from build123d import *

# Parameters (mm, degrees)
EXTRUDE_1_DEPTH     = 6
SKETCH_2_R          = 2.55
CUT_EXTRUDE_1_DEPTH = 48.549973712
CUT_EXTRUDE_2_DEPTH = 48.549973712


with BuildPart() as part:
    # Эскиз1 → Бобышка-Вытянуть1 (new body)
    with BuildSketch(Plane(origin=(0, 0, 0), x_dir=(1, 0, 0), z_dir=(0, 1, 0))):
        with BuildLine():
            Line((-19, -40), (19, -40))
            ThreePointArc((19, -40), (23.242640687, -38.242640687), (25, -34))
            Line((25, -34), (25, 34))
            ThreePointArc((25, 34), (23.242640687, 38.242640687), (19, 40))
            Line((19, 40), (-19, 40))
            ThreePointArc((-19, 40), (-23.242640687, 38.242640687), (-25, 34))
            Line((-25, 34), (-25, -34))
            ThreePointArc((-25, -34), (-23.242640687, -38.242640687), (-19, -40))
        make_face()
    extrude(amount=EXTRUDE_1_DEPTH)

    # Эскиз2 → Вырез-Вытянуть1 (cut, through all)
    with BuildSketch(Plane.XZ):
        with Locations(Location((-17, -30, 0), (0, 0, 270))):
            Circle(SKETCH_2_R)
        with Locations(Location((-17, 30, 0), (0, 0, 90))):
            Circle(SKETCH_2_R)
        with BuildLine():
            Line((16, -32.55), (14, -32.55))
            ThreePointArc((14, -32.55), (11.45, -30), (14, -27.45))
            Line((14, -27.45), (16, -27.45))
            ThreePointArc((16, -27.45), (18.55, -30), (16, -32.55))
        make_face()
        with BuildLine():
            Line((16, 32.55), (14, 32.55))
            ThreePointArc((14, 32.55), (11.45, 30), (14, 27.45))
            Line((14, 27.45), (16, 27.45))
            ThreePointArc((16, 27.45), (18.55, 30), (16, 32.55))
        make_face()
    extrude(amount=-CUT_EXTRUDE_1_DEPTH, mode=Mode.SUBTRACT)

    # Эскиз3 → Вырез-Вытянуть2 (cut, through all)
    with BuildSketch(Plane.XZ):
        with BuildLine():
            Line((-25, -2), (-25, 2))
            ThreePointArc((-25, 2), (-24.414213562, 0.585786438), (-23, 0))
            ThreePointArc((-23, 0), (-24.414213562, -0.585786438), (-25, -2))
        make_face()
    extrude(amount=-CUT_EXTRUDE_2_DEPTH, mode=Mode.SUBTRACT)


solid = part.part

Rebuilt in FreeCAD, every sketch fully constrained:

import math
import FreeCAD as App
import Part
import Sketcher

V = App.Vector

doc = App.newDocument("Part")
body = doc.addObject("PartDesign::Body", "Body")

# Sketch on XZ plane
sketch1 = doc.addObject("Sketcher::SketchObject", "Sketch")
body.addObject(sketch1)
sketch1.AttachmentSupport = (doc.XZ_Plane, [""])
sketch1.MapMode = "FlatFace"
sketch1.addGeometry(Part.LineSegment(V(-19, 40, 0), V(19, 40, 0)), False)
sketch1.addGeometry(Part.ArcOfCircle(Part.Circle(V(19, 34, 0), V(0, 0, 1), 6), math.radians(0), math.radians(90)), False)
sketch1.addGeometry(Part.LineSegment(V(25, 34, 0), V(25, -34, 0)), False)
sketch1.addGeometry(Part.ArcOfCircle(Part.Circle(V(19, -34, 0), V(0, 0, 1), 6), math.radians(-90), math.radians(0)), False)
sketch1.addGeometry(Part.LineSegment(V(19, -40, 0), V(-19, -40, 0)), False)
sketch1.addGeometry(Part.ArcOfCircle(Part.Circle(V(-19, -34, 0), V(0, 0, 1), 6), math.radians(180), math.radians(270)), False)
sketch1.addGeometry(Part.LineSegment(V(-25, -34, 0), V(-25, 34, 0)), False)
sketch1.addGeometry(Part.ArcOfCircle(Part.Circle(V(-19, 34, 0), V(0, 0, 1), 6), math.radians(90), math.radians(180)), False)
sketch1.addConstraint(Sketcher.Constraint("Tangent", 0, 2, 1, 2))
sketch1.addConstraint(Sketcher.Constraint("Tangent", 1, 1, 2, 1))
sketch1.addConstraint(Sketcher.Constraint("Tangent", 2, 2, 3, 2))
sketch1.addConstraint(Sketcher.Constraint("Tangent", 3, 1, 4, 1))
sketch1.addConstraint(Sketcher.Constraint("Tangent", 4, 2, 5, 2))
sketch1.addConstraint(Sketcher.Constraint("Tangent", 5, 1, 6, 1))
sketch1.addConstraint(Sketcher.Constraint("Tangent", 6, 2, 7, 2))
sketch1.addConstraint(Sketcher.Constraint("Tangent", 7, 1, 0, 1))
sketch1.addConstraint(Sketcher.Constraint("Horizontal", 0))
sketch1.addConstraint(Sketcher.Constraint("Vertical", 2))
sketch1.addConstraint(Sketcher.Constraint("Horizontal", 4))
sketch1.addConstraint(Sketcher.Constraint("Vertical", 6))
sketch1.addConstraint(Sketcher.Constraint("Equal", 1, 3))
sketch1.addConstraint(Sketcher.Constraint("Equal", 3, 5))
sketch1.addConstraint(Sketcher.Constraint("Equal", 5, 7))
sketch1.addConstraint(Sketcher.Constraint("Symmetric", 1, 3, 5, 3, -1, 1))
sketch1.addConstraint(Sketcher.Constraint("Radius", 1, 6.0))
sketch1.addConstraint(Sketcher.Constraint("DistanceX", 0, 1, 0, 2, 38.0))
sketch1.addConstraint(Sketcher.Constraint("DistanceY", 2, 2, 2, 1, 68.0))
pad1 = doc.addObject("PartDesign::Pad", "Pad")
body.addObject(pad1)
pad1.Profile = sketch1
pad1.Length = 6
pad1.Reversed = True

# Sketch on XZ plane
sketch2 = doc.addObject("Sketcher::SketchObject", "Sketch001")
body.addObject(sketch2)
sketch2.AttachmentSupport = (doc.XZ_Plane, [""])
sketch2.MapMode = "FlatFace"
sketch2.addGeometry(Part.Circle(V(-17, -30, 0), V(0, 0, 1), 2.55), False)
sketch2.addGeometry(Part.Circle(V(-17, 30, 0), V(0, 0, 1), 2.55), False)
sketch2.addGeometry(Part.LineSegment(V(14, -32.55, 0), V(16, -32.55, 0)), False)
sketch2.addGeometry(Part.ArcOfCircle(Part.Circle(V(16, -30, 0), V(0, 0, 1), 2.55), math.radians(-90), math.radians(90)), False)
sketch2.addGeometry(Part.LineSegment(V(16, -27.45, 0), V(14, -27.45, 0)), False)
sketch2.addGeometry(Part.ArcOfCircle(Part.Circle(V(14, -30, 0), V(0, 0, 1), 2.55), math.radians(90), math.radians(270)), False)
sketch2.addGeometry(Part.LineSegment(V(16, 32.55, 0), V(14, 32.55, 0)), False)
sketch2.addGeometry(Part.ArcOfCircle(Part.Circle(V(14, 30, 0), V(0, 0, 1), 2.55), math.radians(90), math.radians(270)), False)
sketch2.addGeometry(Part.LineSegment(V(14, 27.45, 0), V(16, 27.45, 0)), False)
sketch2.addGeometry(Part.ArcOfCircle(Part.Circle(V(16, 30, 0), V(0, 0, 1), 2.55), math.radians(-90), math.radians(90)), False)
sketch2.addConstraint(Sketcher.Constraint("Tangent", 2, 2, 3, 1))
sketch2.addConstraint(Sketcher.Constraint("Tangent", 3, 2, 4, 1))
sketch2.addConstraint(Sketcher.Constraint("Tangent", 4, 2, 5, 1))
sketch2.addConstraint(Sketcher.Constraint("Tangent", 5, 2, 2, 1))
sketch2.addConstraint(Sketcher.Constraint("Tangent", 6, 2, 7, 1))
sketch2.addConstraint(Sketcher.Constraint("Tangent", 7, 2, 8, 1))
sketch2.addConstraint(Sketcher.Constraint("Tangent", 8, 2, 9, 1))
sketch2.addConstraint(Sketcher.Constraint("Tangent", 9, 2, 6, 1))
sketch2.addConstraint(Sketcher.Constraint("Horizontal", 2))
sketch2.addConstraint(Sketcher.Constraint("Horizontal", 4))
sketch2.addConstraint(Sketcher.Constraint("Horizontal", 6))
sketch2.addConstraint(Sketcher.Constraint("Horizontal", 8))
sketch2.addConstraint(Sketcher.Constraint("Equal", 0, 1))
sketch2.addConstraint(Sketcher.Constraint("Equal", 1, 3))
sketch2.addConstraint(Sketcher.Constraint("Equal", 5, 7))
sketch2.addConstraint(Sketcher.Constraint("Symmetric", 0, 3, 1, 3, -1))
sketch2.addConstraint(Sketcher.Constraint("Symmetric", 5, 3, 7, 3, -1))
sketch2.addConstraint(Sketcher.Constraint("Horizontal", 0, 3, 3, 3))
sketch2.addConstraint(Sketcher.Constraint("Vertical", 3, 3, 9, 3))
sketch2.addConstraint(Sketcher.Constraint("Diameter", 0, 5.1))
sketch2.addConstraint(Sketcher.Constraint("DistanceX", 2, 1, 2, 2, 2.0))
sketch2.addConstraint(Sketcher.Constraint("DistanceX", 0, 3, -1, 1, 17.0))
sketch2.addConstraint(Sketcher.Constraint("DistanceY", 0, 3, -1, 1, 30.0))
sketch2.addConstraint(Sketcher.Constraint("DistanceX", -1, 1, 3, 3, 16.0))
pocket1 = doc.addObject("PartDesign::Pocket", "Pocket")
body.addObject(pocket1)
pocket1.Profile = sketch2
pocket1.Type = "ThroughAll"

# Sketch on XZ plane
sketch3 = doc.addObject("Sketcher::SketchObject", "Sketch002")
body.addObject(sketch3)
sketch3.AttachmentSupport = (doc.XZ_Plane, [""])
sketch3.MapMode = "FlatFace"
sketch3.addGeometry(Part.LineSegment(V(-25, 2, 0), V(-25, -2, 0)), False)
sketch3.addGeometry(Part.ArcOfCircle(Part.Circle(V(-23, -2, 0), V(0, 0, 1), 2), math.radians(90), math.radians(180)), False)
sketch3.addGeometry(Part.ArcOfCircle(Part.Circle(V(-23, 2, 0), V(0, 0, 1), 2), math.radians(-180), math.radians(-90)), False)
sketch3.addConstraint(Sketcher.Constraint("Tangent", 0, 2, 1, 2))
sketch3.addConstraint(Sketcher.Constraint("Tangent", 1, 1, 2, 2))
sketch3.addConstraint(Sketcher.Constraint("Tangent", 2, 1, 0, 1))
sketch3.addConstraint(Sketcher.Constraint("Vertical", 0))
sketch3.addConstraint(Sketcher.Constraint("Equal", 1, 2))
sketch3.addConstraint(Sketcher.Constraint("PointOnObject", 1, 1, -1))
sketch3.addConstraint(Sketcher.Constraint("Radius", 1, 2.0))
sketch3.addConstraint(Sketcher.Constraint("DistanceX", 1, 3, -1, 1, 23.0))
pocket2 = doc.addObject("PartDesign::Pocket", "Pocket001")
body.addObject(pocket2)
pocket2.Profile = sketch3
pocket2.Type = "ThroughAll"

doc.recompute()
